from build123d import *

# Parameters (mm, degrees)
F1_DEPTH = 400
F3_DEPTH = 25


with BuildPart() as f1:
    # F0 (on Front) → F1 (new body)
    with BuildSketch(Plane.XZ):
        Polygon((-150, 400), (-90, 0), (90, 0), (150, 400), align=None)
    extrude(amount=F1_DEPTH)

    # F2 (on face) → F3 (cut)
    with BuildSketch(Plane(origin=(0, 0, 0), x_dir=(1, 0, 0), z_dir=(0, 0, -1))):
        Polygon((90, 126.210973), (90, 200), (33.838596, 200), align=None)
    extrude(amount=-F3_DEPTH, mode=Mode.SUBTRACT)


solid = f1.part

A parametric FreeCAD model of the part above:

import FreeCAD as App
import Part
import Sketcher

doc = App.newDocument("Part")
body = doc.addObject("PartDesign::Body", "Body")

sketch1 = body.newObject("Sketcher::SketchObject", "Sketch")
sketch1.AttachmentSupport = (doc.getObject("XZ_Plane"), [""])
sketch1.MapMode = "FlatFace"
sketch1.addGeometry([
    Part.LineSegment(App.Vector(-150, 400, 0), App.Vector(-90, 0, 0)),
    Part.LineSegment(App.Vector(-90, 0, 0), App.Vector(90, 0, 0)),
    Part.LineSegment(App.Vector(90, 0, 0), App.Vector(150, 400, 0)),
    Part.LineSegment(App.Vector(150, 400, 0), App.Vector(-150, 400, 0)),
], False)
sketch1.addConstraint([
    Sketcher.Constraint("Coincident", 0, 2, 1, 1),
    Sketcher.Constraint("Coincident", 1, 2, 2, 1),
    Sketcher.Constraint("Coincident", 2, 2, 3, 1),
    Sketcher.Constraint("Coincident", 3, 2, 0, 1),
    Sketcher.Constraint("Horizontal", 1),
    Sketcher.Constraint("Horizontal", 3),
    Sketcher.Constraint("Symmetric", 0, 2, 1, 2, -1, 1),
    Sketcher.Constraint("Equal", 0, 2),
    Sketcher.Constraint("DistanceX", 1, 1, 1, 2, 180.0),
    Sketcher.Constraint("DistanceX", 3, 2, 3, 1, 300.0),
    Sketcher.Constraint("DistanceY", -1, 1, 2, 2, 400.0),
])
pad1 = body.newObject("PartDesign::Pad", "Pad")
pad1.Profile = sketch1
pad1.Length = 400

sketch2 = body.newObject("Sketcher::SketchObject", "Sketch001")
sketch2.AttachmentSupport = (doc.getObject("XY_Plane"), [""])
sketch2.MapMode = "FlatFace"
sketch2.addGeometry([
    Part.LineSegment(App.Vector(90, -126, 0), App.Vector(90, -200, 0)),
    Part.LineSegment(App.Vector(90, -200, 0), App.Vector(34, -200, 0)),
    Part.LineSegment(App.Vector(34, -200, 0), App.Vector(90, -126, 0)),
], False)
sketch2.addConstraint([
    Sketcher.Constraint("Coincident", 0, 2, 1, 1),
    Sketcher.Constraint("Coincident", 1, 2, 2, 1),
    Sketcher.Constraint("Coincident", 2, 2, 0, 1),
    Sketcher.Constraint("Vertical", 0),
    Sketcher.Constraint("Horizontal", 1),
    Sketcher.Constraint("DistanceX", -1, 1, 0, 2, 90.0),
    Sketcher.Constraint("DistanceY", 0, 2, -1, 1, 200.0),
    Sketcher.Constraint("DistanceX", 1, 2, 1, 1, 56.161404),
    Sketcher.Constraint("DistanceY", 0, 2, 0, 1, 73.789027),
])
pocket1 = body.newObject("PartDesign::Pocket", "Pocket")
pocket1.Profile = sketch2
pocket1.Length = 25
pocket1.Reversed = True

doc.recompute()
